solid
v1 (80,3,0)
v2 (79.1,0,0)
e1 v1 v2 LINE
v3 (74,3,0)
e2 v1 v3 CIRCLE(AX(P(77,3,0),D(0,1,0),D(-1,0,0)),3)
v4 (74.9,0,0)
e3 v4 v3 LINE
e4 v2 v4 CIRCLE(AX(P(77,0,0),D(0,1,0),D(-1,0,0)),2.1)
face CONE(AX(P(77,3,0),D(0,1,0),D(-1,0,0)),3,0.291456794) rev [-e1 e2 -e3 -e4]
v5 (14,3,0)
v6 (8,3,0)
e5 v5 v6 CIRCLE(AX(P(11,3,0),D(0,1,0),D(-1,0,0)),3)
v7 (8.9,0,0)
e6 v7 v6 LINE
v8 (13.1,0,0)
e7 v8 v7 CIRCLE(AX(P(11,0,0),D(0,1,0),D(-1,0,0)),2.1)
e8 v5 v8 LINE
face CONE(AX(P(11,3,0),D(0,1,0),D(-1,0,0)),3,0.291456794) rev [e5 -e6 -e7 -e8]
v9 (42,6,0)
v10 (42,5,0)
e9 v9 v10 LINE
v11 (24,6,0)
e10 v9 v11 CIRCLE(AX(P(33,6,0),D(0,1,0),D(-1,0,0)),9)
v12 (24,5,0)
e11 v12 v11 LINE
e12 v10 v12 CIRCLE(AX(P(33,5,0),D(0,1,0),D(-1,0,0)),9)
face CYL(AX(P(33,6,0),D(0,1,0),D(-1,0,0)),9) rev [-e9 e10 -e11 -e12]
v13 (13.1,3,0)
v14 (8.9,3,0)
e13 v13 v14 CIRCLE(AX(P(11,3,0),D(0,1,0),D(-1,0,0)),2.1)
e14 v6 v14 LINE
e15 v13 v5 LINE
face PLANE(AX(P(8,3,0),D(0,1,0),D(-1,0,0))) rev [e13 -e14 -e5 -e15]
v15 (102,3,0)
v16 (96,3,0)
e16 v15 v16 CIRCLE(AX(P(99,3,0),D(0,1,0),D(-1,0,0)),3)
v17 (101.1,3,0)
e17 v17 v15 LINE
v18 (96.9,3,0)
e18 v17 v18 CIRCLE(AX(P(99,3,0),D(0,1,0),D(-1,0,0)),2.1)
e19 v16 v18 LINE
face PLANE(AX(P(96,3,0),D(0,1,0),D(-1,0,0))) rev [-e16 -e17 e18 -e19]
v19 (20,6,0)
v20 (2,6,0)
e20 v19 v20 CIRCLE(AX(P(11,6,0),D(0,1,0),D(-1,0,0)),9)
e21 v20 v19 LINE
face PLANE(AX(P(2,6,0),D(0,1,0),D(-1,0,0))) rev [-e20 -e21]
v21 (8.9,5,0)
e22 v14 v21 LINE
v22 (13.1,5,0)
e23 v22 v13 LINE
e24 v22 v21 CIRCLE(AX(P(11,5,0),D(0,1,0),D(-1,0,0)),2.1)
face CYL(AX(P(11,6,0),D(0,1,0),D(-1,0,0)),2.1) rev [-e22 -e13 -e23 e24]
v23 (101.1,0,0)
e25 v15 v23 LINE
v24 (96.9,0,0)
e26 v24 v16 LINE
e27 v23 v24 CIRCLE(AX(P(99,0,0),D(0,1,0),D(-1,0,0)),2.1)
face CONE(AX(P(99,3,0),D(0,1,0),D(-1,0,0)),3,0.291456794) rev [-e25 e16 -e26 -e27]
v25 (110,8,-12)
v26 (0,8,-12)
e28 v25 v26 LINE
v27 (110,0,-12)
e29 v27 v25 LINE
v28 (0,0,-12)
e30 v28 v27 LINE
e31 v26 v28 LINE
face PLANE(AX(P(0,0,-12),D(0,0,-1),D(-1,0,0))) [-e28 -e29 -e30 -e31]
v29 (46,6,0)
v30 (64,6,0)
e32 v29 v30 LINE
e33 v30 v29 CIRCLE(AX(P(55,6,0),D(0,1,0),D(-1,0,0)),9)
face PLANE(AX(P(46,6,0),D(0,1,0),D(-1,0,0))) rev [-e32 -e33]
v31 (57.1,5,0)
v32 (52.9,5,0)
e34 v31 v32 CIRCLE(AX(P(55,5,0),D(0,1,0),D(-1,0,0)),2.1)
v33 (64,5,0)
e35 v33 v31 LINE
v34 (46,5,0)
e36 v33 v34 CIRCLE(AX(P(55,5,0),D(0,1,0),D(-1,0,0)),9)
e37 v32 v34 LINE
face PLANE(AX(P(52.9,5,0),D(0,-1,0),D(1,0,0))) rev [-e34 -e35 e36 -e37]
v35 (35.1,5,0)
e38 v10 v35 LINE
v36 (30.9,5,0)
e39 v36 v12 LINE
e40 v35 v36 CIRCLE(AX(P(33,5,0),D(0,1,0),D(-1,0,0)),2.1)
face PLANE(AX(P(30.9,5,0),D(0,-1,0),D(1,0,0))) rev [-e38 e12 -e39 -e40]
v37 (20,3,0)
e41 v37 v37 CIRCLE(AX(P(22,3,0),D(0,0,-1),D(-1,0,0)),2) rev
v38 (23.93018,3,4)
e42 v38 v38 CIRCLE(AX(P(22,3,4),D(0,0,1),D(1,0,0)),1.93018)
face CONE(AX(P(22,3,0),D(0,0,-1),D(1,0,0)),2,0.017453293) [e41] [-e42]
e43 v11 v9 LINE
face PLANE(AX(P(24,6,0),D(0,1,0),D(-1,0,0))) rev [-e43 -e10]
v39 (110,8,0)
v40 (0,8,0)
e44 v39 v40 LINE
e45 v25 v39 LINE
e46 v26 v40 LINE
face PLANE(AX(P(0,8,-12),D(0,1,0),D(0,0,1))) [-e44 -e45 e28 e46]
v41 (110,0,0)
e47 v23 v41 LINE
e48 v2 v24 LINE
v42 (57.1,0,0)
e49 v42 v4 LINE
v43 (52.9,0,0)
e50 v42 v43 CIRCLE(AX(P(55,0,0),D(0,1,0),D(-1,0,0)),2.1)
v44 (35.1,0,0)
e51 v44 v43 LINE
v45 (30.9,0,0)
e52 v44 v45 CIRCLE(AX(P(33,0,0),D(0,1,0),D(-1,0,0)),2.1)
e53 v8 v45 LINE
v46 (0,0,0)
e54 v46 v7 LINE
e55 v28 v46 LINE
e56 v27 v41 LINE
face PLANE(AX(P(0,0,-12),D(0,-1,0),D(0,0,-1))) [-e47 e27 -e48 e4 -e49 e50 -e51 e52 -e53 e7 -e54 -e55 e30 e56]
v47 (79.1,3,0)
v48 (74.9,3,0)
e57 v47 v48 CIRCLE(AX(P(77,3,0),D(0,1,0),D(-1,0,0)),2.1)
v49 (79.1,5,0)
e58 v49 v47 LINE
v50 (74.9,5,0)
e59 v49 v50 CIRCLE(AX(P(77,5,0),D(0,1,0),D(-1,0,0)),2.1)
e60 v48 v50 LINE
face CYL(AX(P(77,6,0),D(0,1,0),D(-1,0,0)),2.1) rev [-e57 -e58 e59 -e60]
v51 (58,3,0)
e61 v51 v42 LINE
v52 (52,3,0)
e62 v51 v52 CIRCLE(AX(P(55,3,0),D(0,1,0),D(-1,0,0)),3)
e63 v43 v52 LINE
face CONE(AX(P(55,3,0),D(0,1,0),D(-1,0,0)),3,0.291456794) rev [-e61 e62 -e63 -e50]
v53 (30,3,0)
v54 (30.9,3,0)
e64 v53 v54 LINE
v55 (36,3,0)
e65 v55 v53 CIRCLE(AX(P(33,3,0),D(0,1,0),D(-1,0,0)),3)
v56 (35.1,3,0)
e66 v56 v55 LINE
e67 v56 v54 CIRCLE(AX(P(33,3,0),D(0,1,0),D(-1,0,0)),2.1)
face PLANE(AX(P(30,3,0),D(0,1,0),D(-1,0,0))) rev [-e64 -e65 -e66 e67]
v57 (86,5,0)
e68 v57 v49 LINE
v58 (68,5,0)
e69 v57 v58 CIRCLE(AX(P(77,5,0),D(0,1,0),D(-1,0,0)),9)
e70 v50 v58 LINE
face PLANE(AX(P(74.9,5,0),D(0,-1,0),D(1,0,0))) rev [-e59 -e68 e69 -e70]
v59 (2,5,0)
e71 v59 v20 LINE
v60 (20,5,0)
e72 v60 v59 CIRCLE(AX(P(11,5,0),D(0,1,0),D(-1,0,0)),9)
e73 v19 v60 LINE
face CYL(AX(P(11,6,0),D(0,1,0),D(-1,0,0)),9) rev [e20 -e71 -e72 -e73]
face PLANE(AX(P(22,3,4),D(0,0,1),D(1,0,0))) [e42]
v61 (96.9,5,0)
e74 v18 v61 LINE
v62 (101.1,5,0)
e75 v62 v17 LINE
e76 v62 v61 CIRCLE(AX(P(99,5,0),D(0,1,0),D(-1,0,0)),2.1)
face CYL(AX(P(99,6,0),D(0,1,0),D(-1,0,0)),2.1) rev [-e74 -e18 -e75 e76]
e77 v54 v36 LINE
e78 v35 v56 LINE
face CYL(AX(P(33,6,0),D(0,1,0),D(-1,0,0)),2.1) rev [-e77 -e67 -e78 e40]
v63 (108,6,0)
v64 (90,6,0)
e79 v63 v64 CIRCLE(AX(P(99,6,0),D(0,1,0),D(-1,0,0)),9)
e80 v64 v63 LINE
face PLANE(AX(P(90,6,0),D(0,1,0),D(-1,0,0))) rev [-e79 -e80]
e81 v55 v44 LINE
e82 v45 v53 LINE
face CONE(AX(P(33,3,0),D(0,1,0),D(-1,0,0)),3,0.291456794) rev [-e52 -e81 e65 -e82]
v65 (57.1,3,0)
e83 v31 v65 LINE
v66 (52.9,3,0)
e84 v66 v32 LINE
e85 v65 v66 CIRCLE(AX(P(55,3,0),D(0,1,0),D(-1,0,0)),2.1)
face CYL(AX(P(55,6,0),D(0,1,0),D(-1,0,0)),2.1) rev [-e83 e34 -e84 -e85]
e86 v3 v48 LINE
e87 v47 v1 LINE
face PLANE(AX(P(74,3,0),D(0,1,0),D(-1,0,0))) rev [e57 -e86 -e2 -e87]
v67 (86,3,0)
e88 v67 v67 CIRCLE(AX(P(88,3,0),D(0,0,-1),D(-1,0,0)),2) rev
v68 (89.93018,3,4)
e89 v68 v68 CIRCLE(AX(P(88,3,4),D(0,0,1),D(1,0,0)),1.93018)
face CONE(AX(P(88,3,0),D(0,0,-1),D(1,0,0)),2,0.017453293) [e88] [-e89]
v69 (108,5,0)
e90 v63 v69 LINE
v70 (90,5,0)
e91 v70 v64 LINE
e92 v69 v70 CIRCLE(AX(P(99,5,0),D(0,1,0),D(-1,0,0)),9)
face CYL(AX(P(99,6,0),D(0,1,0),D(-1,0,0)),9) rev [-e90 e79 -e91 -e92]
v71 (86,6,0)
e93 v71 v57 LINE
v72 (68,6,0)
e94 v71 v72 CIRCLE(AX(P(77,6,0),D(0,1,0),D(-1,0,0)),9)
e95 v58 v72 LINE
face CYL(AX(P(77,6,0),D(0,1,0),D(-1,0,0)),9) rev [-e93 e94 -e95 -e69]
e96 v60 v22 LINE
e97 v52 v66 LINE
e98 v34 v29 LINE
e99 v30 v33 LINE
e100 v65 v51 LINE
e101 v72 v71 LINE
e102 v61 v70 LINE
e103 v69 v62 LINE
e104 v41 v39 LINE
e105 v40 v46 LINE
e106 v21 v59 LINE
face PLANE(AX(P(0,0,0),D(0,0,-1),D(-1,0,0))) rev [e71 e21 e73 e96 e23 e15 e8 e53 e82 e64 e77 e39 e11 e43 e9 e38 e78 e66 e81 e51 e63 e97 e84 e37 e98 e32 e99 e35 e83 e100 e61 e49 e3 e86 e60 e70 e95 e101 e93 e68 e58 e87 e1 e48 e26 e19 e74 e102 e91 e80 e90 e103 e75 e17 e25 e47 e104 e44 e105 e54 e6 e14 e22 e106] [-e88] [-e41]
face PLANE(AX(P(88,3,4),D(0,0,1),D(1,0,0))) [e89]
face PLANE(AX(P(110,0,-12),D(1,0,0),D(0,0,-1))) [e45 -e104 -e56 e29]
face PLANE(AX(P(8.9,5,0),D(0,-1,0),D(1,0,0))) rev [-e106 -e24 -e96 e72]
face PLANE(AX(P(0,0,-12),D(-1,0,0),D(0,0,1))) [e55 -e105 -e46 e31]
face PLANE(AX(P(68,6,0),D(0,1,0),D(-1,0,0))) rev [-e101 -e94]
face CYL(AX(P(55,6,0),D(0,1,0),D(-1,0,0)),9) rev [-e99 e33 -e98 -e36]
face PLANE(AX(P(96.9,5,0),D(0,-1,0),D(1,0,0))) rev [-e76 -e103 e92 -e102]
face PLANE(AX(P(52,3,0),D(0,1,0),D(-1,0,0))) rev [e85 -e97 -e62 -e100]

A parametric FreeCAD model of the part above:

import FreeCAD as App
import Part
import Sketcher
from FreeCAD import Vector


def add_polygon(sketch, points):
    """Adds a closed chain of lines whose ends are joined by coincident constraints."""
    first, n = sketch.GeometryCount, len(points)
    for a, b in zip(points, points[1:] + points[:1]):
        sketch.addGeometry(Part.LineSegment(App.Vector(*a, 0), App.Vector(*b, 0)), False)
    for i in range(n):
        sketch.addConstraint(Sketcher.Constraint("Coincident", first + i, 2, first + (i + 1) % n, 1))

doc = App.newDocument("Part")
body = doc.addObject("PartDesign::Body", "Body")

sketch1 = body.newObject("Sketcher::SketchObject", "Sketch")
sketch1.AttachmentSupport = (doc.getObject("XY_Plane"), [""])
sketch1.MapMode = "FlatFace"
add_polygon(sketch1, [(0, 8), (0, 0), (110, 0), (110, 8)])
sketch1.addConstraint([
    Sketcher.Constraint("Vertical", 0),
    Sketcher.Constraint("Horizontal", 1),
    Sketcher.Constraint("Vertical", 2),
    Sketcher.Constraint("Horizontal", 3),
    Sketcher.Constraint("Coincident", 0, 2, -1, 1),
    Sketcher.Constraint("DistanceX", 1, 1, 1, 2, 110.0),
    Sketcher.Constraint("DistanceY", 0, 2, 0, 1, 8.0),
])
pad1 = body.newObject("PartDesign::Pad", "Pad")
pad1.Profile = sketch1
pad1.Length = 12
pad1.Reversed = True

sketch2 = body.newObject("Sketcher::SketchObject", "Sketch001")
sketch2.AttachmentSupport = (doc.getObject("XY_Plane"), [""])
sketch2.MapMode = "FlatFace"
add_polygon(sketch2, [(8.9, 3), (8, 3), (8.9, 0), (11, 0), (11, 6), (2, 6), (2, 5), (8.9, 5)])
sketch2.addGeometry(Part.LineSegment(Vector(11, 6, 0), Vector(11, 0, 0)), True)
sketch2.addConstraint([
    Sketcher.Constraint("Horizontal", 0),
    Sketcher.Constraint("Horizontal", 2),
    Sketcher.Constraint("Vertical", 3),
    Sketcher.Constraint("Horizontal", 4),
    Sketcher.Constraint("Vertical", 5),
    Sketcher.Constraint("Horizontal", 6),
    Sketcher.Constraint("Vertical", 7),
    Sketcher.Constraint("Vertical", 8),
    Sketcher.Constraint("Coincident", 8, 1, 3, 2),
    Sketcher.Constraint("PointOnObject", 1, 2, -1),
    Sketcher.Constraint("PointOnObject", 8, 2, -1),
    Sketcher.Constraint("Vertical", 1, 2, 6, 2),
    Sketcher.Constraint("DistanceX", 4, 2, 4, 1, 9.0),
    Sketcher.Constraint("DistanceY", 3, 1, 3, 2, 6.0),
    Sketcher.Constraint("DistanceY", 5, 2, 5, 1, 1.0),
    Sketcher.Constraint("DistanceY", 7, 2, 7, 1, 2.0),
    Sketcher.Constraint("DistanceX", 0, 2, 0, 1, 0.9),
    Sketcher.Constraint("DistanceX", 2, 1, 2, 2, 2.1),
    Sketcher.Constraint("DistanceX", -1, 1, 0, 2, 8.0),
])
groove = body.newObject("PartDesign::Groove", "Groove")
groove.Profile = sketch2
groove.ReferenceAxis = (sketch2, ["Axis0"])
groove.Angle = 360
doc.recompute()

linearpattern = body.newObject("PartDesign::LinearPattern", "LinearPattern")
linearpattern.Originals = [groove]
linearpattern.Direction = (doc.getObject("X_Axis"), [""])
linearpattern.Mode = "offset"
linearpattern.Offset = 22
linearpattern.Occurrences = 5
body.Tip = linearpattern

sketch3 = body.newObject("Sketcher::SketchObject", "Sketch002")
sketch3.AttachmentSupport = (doc.getObject("XY_Plane"), [""])
sketch3.MapMode = "FlatFace"
sketch3.addGeometry([
    Part.Circle(Vector(22, 3, 0), Vector(0, 0, 1), 2),
    Part.Circle(Vector(88, 3, 0), Vector(0, 0, 1), 2),
], False)
sketch3.addConstraint([
    Sketcher.Constraint("Equal", 0, 1),
    Sketcher.Constraint("Horizontal", 0, 3, 1, 3),
    Sketcher.Constraint("Diameter", 0, 4.0),
    Sketcher.Constraint("DistanceX", -1, 1, 0, 3, 22.0),
    Sketcher.Constraint("DistanceY", -1, 1, 0, 3, 3.0),
    Sketcher.Constraint("DistanceX", -1, 1, 1, 3, 88.0),
])
pad2 = body.newObject("PartDesign::Pad", "Pad001")
pad2.Profile = sketch3
pad2.Length = 4
pad2.TaperAngle = -1

doc.recompute()
